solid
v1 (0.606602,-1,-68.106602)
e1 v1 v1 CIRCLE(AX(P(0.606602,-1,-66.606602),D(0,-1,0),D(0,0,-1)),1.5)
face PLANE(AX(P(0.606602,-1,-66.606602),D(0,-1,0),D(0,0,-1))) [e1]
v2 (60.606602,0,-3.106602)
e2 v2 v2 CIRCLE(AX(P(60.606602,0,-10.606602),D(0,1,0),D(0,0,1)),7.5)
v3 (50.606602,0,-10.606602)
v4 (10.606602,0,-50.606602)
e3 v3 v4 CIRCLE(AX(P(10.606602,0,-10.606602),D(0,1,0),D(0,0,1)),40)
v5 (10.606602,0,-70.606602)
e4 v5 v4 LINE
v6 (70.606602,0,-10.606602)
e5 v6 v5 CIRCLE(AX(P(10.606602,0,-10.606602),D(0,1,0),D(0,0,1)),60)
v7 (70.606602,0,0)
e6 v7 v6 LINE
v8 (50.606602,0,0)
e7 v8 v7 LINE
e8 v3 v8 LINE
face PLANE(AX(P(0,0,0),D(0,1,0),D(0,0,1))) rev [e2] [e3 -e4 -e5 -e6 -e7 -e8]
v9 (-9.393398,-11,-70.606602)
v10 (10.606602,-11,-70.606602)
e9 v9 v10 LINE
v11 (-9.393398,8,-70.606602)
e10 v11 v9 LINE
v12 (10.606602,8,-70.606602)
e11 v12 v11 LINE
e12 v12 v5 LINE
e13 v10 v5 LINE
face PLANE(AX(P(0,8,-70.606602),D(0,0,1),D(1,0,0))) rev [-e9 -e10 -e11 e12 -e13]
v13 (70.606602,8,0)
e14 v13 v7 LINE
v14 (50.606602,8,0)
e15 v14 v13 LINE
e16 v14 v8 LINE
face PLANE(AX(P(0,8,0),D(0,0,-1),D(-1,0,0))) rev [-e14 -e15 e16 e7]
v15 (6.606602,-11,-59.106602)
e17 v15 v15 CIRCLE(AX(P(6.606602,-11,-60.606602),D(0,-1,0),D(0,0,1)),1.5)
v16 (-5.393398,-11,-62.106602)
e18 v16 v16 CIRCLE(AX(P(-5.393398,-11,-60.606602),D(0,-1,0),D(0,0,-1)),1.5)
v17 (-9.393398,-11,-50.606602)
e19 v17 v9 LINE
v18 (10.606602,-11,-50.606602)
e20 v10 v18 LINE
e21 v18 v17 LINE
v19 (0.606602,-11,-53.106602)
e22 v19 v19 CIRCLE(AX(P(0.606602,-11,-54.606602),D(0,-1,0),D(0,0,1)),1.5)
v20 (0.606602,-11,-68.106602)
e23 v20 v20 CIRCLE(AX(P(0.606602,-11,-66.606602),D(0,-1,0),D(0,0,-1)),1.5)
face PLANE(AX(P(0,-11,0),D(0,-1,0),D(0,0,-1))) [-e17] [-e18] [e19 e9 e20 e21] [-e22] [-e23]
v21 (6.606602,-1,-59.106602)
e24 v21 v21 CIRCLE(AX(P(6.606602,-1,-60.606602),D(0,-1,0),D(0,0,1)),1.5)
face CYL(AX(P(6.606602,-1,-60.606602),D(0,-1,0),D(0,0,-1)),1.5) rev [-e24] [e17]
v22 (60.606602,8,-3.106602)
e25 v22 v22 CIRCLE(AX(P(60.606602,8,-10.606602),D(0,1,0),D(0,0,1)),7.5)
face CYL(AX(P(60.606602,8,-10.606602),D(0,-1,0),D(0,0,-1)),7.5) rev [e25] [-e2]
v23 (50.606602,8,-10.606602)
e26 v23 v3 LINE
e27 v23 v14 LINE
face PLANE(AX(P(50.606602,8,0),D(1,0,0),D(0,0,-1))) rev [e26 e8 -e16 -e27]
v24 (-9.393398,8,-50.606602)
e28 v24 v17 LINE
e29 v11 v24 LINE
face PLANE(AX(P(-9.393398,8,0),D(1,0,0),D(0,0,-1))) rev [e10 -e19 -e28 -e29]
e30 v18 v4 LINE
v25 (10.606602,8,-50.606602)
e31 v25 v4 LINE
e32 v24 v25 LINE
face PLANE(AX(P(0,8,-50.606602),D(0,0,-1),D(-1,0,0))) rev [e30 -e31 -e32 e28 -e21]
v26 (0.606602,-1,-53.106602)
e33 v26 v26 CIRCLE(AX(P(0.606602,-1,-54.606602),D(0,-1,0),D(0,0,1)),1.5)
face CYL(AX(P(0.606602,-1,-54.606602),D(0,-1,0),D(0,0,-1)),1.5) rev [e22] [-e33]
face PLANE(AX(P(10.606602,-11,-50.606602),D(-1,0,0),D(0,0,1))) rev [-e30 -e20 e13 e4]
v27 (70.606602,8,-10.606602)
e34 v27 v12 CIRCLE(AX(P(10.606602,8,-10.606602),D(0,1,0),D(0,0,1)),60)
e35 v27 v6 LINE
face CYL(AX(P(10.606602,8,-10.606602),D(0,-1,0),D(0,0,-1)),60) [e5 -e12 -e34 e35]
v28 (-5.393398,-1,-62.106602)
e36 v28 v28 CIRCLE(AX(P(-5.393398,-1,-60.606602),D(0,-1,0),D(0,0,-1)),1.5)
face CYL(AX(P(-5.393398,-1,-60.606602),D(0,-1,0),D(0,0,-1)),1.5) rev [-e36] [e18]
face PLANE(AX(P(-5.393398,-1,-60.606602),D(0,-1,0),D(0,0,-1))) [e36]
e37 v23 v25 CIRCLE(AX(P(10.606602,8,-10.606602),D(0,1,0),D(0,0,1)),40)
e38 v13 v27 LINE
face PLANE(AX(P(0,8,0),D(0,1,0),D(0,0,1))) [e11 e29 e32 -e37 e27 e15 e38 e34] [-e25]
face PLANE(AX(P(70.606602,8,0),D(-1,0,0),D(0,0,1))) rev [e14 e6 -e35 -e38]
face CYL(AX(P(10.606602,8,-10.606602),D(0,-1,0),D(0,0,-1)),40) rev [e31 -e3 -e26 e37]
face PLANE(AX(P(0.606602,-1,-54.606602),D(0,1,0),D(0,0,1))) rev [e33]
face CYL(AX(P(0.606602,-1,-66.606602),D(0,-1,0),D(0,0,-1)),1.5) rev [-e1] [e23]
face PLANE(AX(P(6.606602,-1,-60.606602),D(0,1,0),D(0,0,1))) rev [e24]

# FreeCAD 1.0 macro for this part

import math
import FreeCAD as App
import Part
import Sketcher
Q = App.Units.Quantity


def add_polygon(sketch, points):
    """Adds a closed chain of lines whose ends are joined by coincident constraints."""
    first, n = sketch.GeometryCount, len(points)
    for a, b in zip(points, points[1:] + points[:1]):
        sketch.addGeometry(Part.LineSegment(App.Vector(*a, 0), App.Vector(*b, 0)), False)
    for i in range(n):
        sketch.addConstraint(Sketcher.Constraint("Coincident", first + i, 2, first + (i + 1) % n, 1))

doc = App.newDocument("Part")
params = doc.addObject("Spreadsheet::Sheet", "Params")
for row, (alias, value) in enumerate([
    ("sketch1_diameter", "15 mm"),
    ("sketch1_radius", "60 mm"),
    ("sketch1_radius2", "40 mm"),
    ("pad1_length", "8 mm"),
    ("sketch2_width", "20 mm"),
    ("pad2_length", "11 mm"),
    ("sketch3_diameter", "3 mm"),
    ("pocket1_length", "10 mm"),
], start=1):
    params.set(f"A{row}", alias)
    params.set(f"B{row}", "=" + value)
    params.setAlias(f"B{row}", alias)

body = doc.addObject("PartDesign::Body", "Body")

sketch1 = doc.addObject("Sketcher::SketchObject", "Sketch")
body.addObject(sketch1)
sketch1.AttachmentSupport = (doc.XZ_Plane, [""])
sketch1.MapMode = "FlatFace"
sketch1.addGeometry([
    Part.LineSegment(App.Vector(50.606602, -10.606602, 0), App.Vector(50.606602, 0, 0)),
    Part.LineSegment(App.Vector(50.606602, 0, 0), App.Vector(70.606602, 0, 0)),
    Part.LineSegment(App.Vector(70.606602, 0, 0), App.Vector(70.606602, -10.606602, 0)),
    Part.ArcOfCircle(Part.Circle(App.Vector(10.606602, -10.606602, 0), App.Vector(0, 0, 1), 60), math.radians(-90), math.radians(0)),
    Part.LineSegment(App.Vector(10.606602, -70.606602, 0), App.Vector(-9.393398, -70.606602, 0)),
    Part.LineSegment(App.Vector(-9.393398, -70.606602, 0), App.Vector(-9.393398, -50.606602, 0)),
    Part.LineSegment(App.Vector(-9.393398, -50.606602, 0), App.Vector(10.606602, -50.606602, 0)),
    Part.ArcOfCircle(Part.Circle(App.Vector(10.606602, -10.606602, 0), App.Vector(0, 0, 1), 40), math.radians(-90), math.radians(0)),
    Part.Circle(App.Vector(60.606602, -10.606602, 0), App.Vector(0, 0, 1), 7.5),
], False)
sketch1.addConstraint([
    Sketcher.Constraint("Coincident", 0, 2, 1, 1),
    Sketcher.Constraint("Coincident", 1, 2, 2, 1),
    Sketcher.Constraint("Tangent", 2, 2, 3, 2),
    Sketcher.Constraint("Tangent", 3, 1, 4, 1),
    Sketcher.Constraint("Coincident", 4, 2, 5, 1),
    Sketcher.Constraint("Coincident", 5, 2, 6, 1),
    Sketcher.Constraint("Tangent", 6, 2, 7, 1),
    Sketcher.Constraint("Tangent", 7, 2, 0, 1),
    Sketcher.Constraint("Vertical", 0),
    Sketcher.Constraint("Horizontal", 1),
    Sketcher.Constraint("Vertical", 2),
    Sketcher.Constraint("Horizontal", 4),
    Sketcher.Constraint("Vertical", 5),
    Sketcher.Constraint("Horizontal", 6),
    Sketcher.Constraint("Coincident", 7, 3, 3, 3),
    Sketcher.Constraint("PointOnObject", 0, 2, -1),
    Sketcher.Constraint("Horizontal", 7, 3, 8, 3),
    Sketcher.Constraint("Equal", 1, 4),
    Sketcher.Constraint("Diameter", 8, Q("15 mm")),
    Sketcher.Constraint("Radius", 3, Q("60 mm")),
    Sketcher.Constraint("Radius", 7, Q("40 mm")),
    Sketcher.Constraint("DistanceX", 3, 3, 8, 3, Q("50 mm")),
    Sketcher.Constraint("DistanceY", 0, 1, 0, 2, Q("10.606602 mm")),
    Sketcher.Constraint("DistanceX", -1, 1, 3, 3, Q("10.606602 mm")),
])
sketch1.setExpression("Constraints[18]", "Params.sketch1_diameter")
sketch1.setExpression("Constraints[19]", "Params.sketch1_radius")
sketch1.setExpression("Constraints[20]", "Params.sketch1_radius2")
pad1 = doc.addObject("PartDesign::Pad", "Pad")
body.addObject(pad1)
pad1.Profile = sketch1
pad1.setExpression("Length", "Params.pad1_length")
pad1.Reversed = True

sketch2 = doc.addObject("Sketcher::SketchObject", "Sketch001")
body.addObject(sketch2)
sketch2.AttachmentSupport = (doc.XZ_Plane, [""])
sketch2.MapMode = "FlatFace"
add_polygon(sketch2, [(-9.393398, -50.606602), (-9.393398, -70.606602), (10.606602, -70.606602), (10.606602, -50.606602)])
sketch2.addConstraint([
    Sketcher.Constraint("Vertical", 0),
    Sketcher.Constraint("Horizontal", 1),
    Sketcher.Constraint("Vertical", 2),
    Sketcher.Constraint("Horizontal", 3),
    Sketcher.Constraint("Equal", 3, 0),
    Sketcher.Constraint("DistanceX", 1, 1, 1, 2, Q("20 mm")),
    Sketcher.Constraint("DistanceX", 0, 2, -1, 1, Q("9.393398 mm")),
    Sketcher.Constraint("DistanceY", 0, 2, -1, 1, Q("70.606602 mm")),
])
sketch2.setExpression("Constraints[9]", "Params.sketch2_width")
pad2 = doc.addObject("PartDesign::Pad", "Pad001")
body.addObject(pad2)
pad2.Profile = sketch2
pad2.setExpression("Length", "Params.pad2_length")

sketch3 = doc.addObject("Sketcher::SketchObject", "Sketch002")
body.addObject(sketch3)
sketch3.AttachmentSupport = (doc.XZ_Plane, [""])
sketch3.MapMode = "FlatFace"
sketch3.AttachmentOffset = App.Placement(App.Vector(0, 0, 11), App.Rotation())
sketch3.addGeometry([
    Part.Circle(App.Vector(-5.393398, -60.606602, 0), App.Vector(0, 0, 1), 1.5),
    Part.Circle(App.Vector(6.606602, -60.606602, 0), App.Vector(0, 0, 1), 1.5),
    Part.Circle(App.Vector(0.606602, -66.606602, 0), App.Vector(0, 0, 1), 1.5),
    Part.Circle(App.Vector(0.606602, -54.606602, 0), App.Vector(0, 0, 1), 1.5),
], False)
sketch3.addConstraint([
    Sketcher.Constraint("Equal", 0, 1),
    Sketcher.Constraint("Equal", 1, 2),
    Sketcher.Constraint("Equal", 2, 3),
    Sketcher.Constraint("Horizontal", 0, 3, 1, 3),
    Sketcher.Constraint("Vertical", 2, 3, 3, 3),
    Sketcher.Constraint("Diameter", 0, Q("3 mm")),
    Sketcher.Constraint("DistanceX", 0, 3, 1, 3, Q("12 mm")),
    Sketcher.Constraint("DistanceX", 0, 3, 2, 3, Q("6 mm")),
    Sketcher.Constraint("DistanceY", 2, 3, 0, 3, Q("6 mm")),
    Sketcher.Constraint("DistanceY", 0, 3, 3, 3, Q("6 mm")),
    Sketcher.Constraint("DistanceX", 0, 3, -1, 1, Q("5.393398 mm")),
    Sketcher.Constraint("DistanceY", 0, 3, -1, 1, Q("60.606602 mm")),
])
sketch3.setExpression("Constraints[5]", "Params.sketch3_diameter")
pocket1 = doc.addObject("PartDesign::Pocket", "Pocket")
body.addObject(pocket1)
pocket1.Profile = sketch3
pocket1.setExpression("Length", "Params.pocket1_length")

doc.recompute()
